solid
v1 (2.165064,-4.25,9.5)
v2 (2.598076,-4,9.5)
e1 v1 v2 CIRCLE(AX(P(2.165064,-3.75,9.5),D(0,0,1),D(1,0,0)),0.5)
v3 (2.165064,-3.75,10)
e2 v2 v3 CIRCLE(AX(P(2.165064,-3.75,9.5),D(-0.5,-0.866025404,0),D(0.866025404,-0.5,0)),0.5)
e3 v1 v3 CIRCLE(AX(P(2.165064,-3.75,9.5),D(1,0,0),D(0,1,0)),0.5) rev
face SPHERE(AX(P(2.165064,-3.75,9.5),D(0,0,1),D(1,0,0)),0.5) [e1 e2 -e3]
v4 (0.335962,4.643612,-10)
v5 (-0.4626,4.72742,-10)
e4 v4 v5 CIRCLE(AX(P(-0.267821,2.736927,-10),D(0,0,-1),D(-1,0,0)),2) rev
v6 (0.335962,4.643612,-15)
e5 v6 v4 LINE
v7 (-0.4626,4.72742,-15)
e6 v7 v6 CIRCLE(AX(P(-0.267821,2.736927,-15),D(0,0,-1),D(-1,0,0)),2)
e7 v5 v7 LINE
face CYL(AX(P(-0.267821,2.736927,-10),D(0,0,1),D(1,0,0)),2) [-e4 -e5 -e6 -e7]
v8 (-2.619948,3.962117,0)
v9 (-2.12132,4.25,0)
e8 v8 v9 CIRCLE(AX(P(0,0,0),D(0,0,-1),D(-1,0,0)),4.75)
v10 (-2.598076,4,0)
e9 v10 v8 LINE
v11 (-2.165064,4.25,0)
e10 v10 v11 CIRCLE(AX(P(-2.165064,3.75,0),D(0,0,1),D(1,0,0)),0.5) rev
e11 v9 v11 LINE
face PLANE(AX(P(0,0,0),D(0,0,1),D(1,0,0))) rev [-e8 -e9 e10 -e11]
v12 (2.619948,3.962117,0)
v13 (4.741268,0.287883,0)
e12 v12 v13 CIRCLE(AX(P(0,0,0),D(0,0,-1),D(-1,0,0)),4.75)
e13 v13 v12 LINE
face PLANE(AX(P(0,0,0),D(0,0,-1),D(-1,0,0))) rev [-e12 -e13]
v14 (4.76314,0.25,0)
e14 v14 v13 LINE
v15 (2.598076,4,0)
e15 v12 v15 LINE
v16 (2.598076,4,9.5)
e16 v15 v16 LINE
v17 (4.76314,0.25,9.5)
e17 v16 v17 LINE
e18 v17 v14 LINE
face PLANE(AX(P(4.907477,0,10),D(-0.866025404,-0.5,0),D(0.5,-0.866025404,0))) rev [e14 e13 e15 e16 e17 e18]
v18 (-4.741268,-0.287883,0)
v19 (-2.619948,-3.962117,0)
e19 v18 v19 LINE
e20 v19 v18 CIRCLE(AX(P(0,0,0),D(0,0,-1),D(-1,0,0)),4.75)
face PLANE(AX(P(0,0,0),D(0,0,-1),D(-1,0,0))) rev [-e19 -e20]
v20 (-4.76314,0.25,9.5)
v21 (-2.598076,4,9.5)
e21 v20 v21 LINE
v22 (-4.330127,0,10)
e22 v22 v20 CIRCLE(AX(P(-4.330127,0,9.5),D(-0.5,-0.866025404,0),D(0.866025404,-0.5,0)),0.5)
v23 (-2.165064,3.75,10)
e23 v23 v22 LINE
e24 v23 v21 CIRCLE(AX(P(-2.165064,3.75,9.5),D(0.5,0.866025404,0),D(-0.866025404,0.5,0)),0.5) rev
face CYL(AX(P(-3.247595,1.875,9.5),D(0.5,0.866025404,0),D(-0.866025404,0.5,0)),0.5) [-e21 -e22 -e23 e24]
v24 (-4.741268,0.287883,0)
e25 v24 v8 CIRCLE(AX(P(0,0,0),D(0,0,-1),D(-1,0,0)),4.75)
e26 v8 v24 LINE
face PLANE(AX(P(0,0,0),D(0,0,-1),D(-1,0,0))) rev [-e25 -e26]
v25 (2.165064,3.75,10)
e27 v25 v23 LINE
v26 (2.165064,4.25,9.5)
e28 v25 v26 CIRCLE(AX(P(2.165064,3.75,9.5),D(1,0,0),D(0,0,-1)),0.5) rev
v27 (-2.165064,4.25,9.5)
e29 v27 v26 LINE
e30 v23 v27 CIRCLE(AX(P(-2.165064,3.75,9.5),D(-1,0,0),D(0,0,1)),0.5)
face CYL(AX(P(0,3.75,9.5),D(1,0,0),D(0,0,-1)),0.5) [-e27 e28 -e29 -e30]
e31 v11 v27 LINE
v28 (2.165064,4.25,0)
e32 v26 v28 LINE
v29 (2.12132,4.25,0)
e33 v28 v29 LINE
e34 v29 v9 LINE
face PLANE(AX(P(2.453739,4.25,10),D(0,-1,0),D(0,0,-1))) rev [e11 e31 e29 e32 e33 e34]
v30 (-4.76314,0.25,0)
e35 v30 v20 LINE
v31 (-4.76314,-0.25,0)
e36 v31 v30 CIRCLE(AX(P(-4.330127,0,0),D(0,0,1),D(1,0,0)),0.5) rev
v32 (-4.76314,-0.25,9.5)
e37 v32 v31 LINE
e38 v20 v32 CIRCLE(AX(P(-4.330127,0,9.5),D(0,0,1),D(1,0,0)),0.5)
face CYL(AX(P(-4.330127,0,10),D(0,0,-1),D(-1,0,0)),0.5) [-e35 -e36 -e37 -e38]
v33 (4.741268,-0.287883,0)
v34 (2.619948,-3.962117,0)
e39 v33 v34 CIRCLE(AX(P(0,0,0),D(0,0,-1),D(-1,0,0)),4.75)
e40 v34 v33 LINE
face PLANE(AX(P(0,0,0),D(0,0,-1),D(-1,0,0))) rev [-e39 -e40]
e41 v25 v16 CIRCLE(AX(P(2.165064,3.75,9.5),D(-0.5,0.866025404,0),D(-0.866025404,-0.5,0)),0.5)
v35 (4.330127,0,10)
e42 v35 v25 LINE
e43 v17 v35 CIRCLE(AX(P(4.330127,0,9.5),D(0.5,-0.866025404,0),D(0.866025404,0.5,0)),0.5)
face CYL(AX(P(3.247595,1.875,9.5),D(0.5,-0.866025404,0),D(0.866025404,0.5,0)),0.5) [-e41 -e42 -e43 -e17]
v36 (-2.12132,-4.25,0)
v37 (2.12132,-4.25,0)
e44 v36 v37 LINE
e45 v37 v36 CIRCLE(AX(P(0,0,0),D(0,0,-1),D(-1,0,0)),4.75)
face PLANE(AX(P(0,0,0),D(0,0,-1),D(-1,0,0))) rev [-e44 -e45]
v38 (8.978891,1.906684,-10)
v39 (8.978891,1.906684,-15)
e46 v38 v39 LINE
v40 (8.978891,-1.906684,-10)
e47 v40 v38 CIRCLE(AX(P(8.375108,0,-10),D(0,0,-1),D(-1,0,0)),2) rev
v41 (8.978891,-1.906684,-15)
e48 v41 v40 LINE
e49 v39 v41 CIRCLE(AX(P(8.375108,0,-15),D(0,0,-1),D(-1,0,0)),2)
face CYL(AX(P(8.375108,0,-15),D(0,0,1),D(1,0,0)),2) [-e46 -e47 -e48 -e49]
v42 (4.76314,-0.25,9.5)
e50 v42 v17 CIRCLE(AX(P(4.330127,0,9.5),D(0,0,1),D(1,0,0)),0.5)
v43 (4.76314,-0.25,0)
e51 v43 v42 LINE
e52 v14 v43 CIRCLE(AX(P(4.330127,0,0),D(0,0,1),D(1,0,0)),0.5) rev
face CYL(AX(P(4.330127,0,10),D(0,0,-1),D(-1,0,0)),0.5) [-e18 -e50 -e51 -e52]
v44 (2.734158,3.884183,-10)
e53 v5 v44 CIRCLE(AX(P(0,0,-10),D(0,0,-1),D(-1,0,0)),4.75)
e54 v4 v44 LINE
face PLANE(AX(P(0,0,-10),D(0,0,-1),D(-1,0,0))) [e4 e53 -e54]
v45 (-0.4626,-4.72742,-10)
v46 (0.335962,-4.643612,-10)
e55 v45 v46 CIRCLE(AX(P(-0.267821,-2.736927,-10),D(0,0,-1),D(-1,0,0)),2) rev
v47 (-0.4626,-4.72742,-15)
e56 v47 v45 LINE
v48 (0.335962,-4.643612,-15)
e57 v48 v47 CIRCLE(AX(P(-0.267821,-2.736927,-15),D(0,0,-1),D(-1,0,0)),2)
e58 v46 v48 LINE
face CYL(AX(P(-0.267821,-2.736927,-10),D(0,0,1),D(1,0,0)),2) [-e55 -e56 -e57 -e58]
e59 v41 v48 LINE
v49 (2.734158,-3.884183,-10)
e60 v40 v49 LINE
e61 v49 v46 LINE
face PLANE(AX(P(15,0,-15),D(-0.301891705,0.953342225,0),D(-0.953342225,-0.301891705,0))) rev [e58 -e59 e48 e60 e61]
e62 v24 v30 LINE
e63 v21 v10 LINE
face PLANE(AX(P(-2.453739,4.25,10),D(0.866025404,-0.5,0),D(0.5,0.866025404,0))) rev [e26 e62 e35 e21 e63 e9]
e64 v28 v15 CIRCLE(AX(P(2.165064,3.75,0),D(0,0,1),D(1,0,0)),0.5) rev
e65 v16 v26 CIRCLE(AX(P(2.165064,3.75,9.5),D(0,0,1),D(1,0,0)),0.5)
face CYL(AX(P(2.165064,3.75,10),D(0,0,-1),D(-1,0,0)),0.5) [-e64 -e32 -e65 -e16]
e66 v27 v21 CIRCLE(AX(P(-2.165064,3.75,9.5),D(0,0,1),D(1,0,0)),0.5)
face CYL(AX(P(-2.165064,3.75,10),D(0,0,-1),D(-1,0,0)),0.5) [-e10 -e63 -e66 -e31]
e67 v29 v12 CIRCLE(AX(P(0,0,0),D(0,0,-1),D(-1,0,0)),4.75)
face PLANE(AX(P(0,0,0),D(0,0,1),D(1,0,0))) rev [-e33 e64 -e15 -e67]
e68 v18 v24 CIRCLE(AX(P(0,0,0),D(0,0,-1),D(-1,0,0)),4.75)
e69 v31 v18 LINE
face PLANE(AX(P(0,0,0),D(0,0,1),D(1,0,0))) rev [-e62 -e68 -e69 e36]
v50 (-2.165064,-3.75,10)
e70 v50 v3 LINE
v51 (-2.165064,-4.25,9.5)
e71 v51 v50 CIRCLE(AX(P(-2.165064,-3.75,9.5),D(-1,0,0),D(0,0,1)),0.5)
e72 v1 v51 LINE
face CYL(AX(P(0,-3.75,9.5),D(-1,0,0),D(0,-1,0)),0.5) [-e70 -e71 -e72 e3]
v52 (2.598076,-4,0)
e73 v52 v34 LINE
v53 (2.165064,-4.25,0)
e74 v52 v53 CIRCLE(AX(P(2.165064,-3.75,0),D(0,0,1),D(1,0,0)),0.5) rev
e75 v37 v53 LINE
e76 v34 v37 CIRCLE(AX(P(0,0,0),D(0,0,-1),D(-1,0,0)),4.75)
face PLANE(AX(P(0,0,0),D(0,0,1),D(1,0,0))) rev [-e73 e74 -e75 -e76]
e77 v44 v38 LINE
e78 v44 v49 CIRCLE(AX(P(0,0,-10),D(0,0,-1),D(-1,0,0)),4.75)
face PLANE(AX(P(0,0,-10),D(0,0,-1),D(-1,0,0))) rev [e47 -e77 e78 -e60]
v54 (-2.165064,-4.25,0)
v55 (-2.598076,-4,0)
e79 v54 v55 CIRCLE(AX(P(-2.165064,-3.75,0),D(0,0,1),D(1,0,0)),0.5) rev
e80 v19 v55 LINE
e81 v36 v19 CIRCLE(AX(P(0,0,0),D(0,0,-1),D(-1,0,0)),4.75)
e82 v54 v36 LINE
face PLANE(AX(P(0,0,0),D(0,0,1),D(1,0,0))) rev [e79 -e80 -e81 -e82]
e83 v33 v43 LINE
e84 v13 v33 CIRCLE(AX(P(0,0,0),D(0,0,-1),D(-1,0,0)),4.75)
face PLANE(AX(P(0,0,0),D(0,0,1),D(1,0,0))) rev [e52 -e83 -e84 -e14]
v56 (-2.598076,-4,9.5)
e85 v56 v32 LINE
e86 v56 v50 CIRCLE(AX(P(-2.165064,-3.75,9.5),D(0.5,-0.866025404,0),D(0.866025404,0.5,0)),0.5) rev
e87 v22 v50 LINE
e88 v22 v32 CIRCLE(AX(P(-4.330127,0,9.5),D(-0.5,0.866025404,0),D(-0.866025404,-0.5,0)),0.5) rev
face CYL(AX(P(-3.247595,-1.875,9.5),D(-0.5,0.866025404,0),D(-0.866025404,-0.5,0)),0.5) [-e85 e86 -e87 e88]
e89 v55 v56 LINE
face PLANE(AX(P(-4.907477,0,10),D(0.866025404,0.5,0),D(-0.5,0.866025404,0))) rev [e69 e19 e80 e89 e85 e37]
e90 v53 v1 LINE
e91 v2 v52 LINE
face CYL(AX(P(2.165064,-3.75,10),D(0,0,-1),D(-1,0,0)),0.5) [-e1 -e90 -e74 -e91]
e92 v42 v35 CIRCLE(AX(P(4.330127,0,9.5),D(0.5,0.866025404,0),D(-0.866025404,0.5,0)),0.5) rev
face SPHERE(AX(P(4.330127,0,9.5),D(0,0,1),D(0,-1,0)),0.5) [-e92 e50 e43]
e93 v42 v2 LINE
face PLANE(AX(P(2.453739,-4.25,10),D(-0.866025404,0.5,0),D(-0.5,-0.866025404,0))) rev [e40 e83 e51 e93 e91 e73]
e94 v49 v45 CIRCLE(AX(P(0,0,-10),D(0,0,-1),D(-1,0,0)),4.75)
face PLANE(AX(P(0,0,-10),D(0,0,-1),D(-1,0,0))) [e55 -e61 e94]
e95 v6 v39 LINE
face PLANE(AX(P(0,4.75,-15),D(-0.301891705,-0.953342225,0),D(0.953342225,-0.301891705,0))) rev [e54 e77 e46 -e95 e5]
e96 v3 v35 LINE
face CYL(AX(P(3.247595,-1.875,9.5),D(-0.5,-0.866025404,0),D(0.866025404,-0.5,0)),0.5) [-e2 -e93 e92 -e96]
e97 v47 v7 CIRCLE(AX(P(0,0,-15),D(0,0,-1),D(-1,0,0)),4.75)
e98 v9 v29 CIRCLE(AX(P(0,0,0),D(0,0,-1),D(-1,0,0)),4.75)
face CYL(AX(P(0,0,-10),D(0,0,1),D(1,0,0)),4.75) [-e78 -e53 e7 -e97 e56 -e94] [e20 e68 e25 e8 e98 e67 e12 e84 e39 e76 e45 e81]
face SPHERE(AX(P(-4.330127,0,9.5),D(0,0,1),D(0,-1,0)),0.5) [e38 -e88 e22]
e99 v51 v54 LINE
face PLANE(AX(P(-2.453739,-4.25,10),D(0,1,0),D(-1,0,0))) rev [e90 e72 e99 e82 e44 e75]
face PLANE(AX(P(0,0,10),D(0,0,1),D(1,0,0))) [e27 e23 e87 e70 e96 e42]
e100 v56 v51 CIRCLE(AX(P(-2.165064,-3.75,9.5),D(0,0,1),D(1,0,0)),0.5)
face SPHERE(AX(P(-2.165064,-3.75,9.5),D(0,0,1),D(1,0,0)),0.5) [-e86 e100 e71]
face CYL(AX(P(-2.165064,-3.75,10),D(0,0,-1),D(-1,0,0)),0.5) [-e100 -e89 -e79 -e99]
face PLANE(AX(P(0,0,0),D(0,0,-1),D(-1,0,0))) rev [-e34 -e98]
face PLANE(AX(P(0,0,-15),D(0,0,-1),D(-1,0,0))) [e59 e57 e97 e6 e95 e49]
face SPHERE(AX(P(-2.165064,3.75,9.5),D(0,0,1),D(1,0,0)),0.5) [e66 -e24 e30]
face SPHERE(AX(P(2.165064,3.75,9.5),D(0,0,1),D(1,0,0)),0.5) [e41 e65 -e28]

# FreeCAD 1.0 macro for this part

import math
import FreeCAD as App
import Part
import Sketcher
from FreeCAD import Vector
Q = App.Units.Quantity


def edges_at(feature, points):
    """Names of the edges that pass closest to the given points."""
    edges = feature.Shape.Edges
    near = lambda p: min(range(len(edges)), key=lambda i: edges[i].distToShape(Part.Vertex(*p))[0])
    return sorted({f"Edge{near(p) + 1}" for p in points})


def add_polygon(sketch, points):
    """Adds a closed chain of lines whose ends are joined by coincident constraints."""
    first, n = sketch.GeometryCount, len(points)
    for a, b in zip(points, points[1:] + points[:1]):
        sketch.addGeometry(Part.LineSegment(App.Vector(*a, 0), App.Vector(*b, 0)), False)
    for i in range(n):
        sketch.addConstraint(Sketcher.Constraint("Coincident", first + i, 2, first + (i + 1) % n, 1))

doc = App.newDocument("Part")
params = doc.addObject("Spreadsheet::Sheet", "Params")
for row, (alias, value) in enumerate([
    ("pad1_length", "10 mm"),
    ("fillet_radius", "0.5 mm"),
    ("sketch2_diameter", "9.5 mm"),
    ("pad2_length", "10 mm"),
    ("sketch3_radius", "4.75 mm"),
    ("pad3_length", "5 mm"),
    ("fillet2_radius", "2 mm"),
], start=1):
    params.set(f"A{row}", alias)
    params.set(f"B{row}", "=" + value)
    params.setAlias(f"B{row}", alias)

body = doc.addObject("PartDesign::Body", "Body")

# Sketch on XY plane
sketch1 = doc.addObject("Sketcher::SketchObject", "Sketch")
body.addObject(sketch1)
sketch1.AttachmentSupport = (doc.XY_Plane, [""])
sketch1.MapMode = "FlatFace"
add_polygon(sketch1, [(2.5, -4.2), (4.9, 0), (2.5, 4.2), (-2.5, 4.2), (-4.9, 0), (-2.5, -4.2)])  # lines 0-5
sketch1.addConstraint([
    Sketcher.Constraint("Horizontal", 2),
    Sketcher.Constraint("Horizontal", 5),
    Sketcher.Constraint("Symmetric", 0, 2, 3, 2, -1, 1),
    Sketcher.Constraint("Symmetric", 1, 2, 4, 2, -1, 1),
    Sketcher.Constraint("PointOnObject", 0, 2, -1),
    Sketcher.Constraint("Parallel", 0, 3),
    Sketcher.Constraint("Vertical", 2, 2, 4, 2),
    Sketcher.Constraint("Angle", 0, Q("60 deg")),
    Sketcher.Constraint("DistanceY", 4, 2, 2, 2, Q("8.5 mm")),
    Sketcher.Constraint("DistanceX", 2, 2, 2, 1, Q("4.907477 mm")),
])
pad1 = doc.addObject("PartDesign::Pad", "Pad")
body.addObject(pad1)
pad1.Profile = sketch1
pad1.setExpression("Length", "Params.pad1_length")
doc.recompute()

fillet = doc.addObject("PartDesign::Fillet", "Fillet")
body.addObject(fillet)
fillet.Base = (pad1, edges_at(pad1, [
    (-2.454, -4.25, 5),
    (-4.907, 0, 5),
    (-2.454, 4.25, 5),
    (2.454, 4.25, 5),
    (4.907, 0, 5),
    (2.454, -4.25, 5),
    (3.681, 2.125, 10),
    (0, 4.25, 10),
    (-3.681, 2.125, 10),
    (-3.681, -2.125, 10),
    (0, -4.25, 10),
    (3.681, -2.125, 10),
]))
fillet.setExpression("Radius", "Params.fillet_radius")

# Sketch on XY plane
sketch2 = doc.addObject("Sketcher::SketchObject", "Sketch001")
body.addObject(sketch2)
sketch2.AttachmentSupport = (doc.XY_Plane, [""])
sketch2.MapMode = "FlatFace"
sketch2.addGeometry(Part.Circle(Vector(0, 0, 0), Vector(0, 0, 1), 4.8), False)
sketch2.addConstraint([
    Sketcher.Constraint("Coincident", 0, 3, -1, 1),
    Sketcher.Constraint("Diameter", 0, Q("9.5 mm")),
])
sketch2.setExpression("Constraints[1]", "Params.sketch2_diameter")
pad2 = doc.addObject("PartDesign::Pad", "Pad001")
body.addObject(pad2)
pad2.Profile = sketch2
pad2.setExpression("Length", "Params.pad2_length")
pad2.Reversed = True

# Sketch on XY plane
sketch3 = doc.addObject("Sketcher::SketchObject", "Sketch002")
body.addObject(sketch3)
sketch3.AttachmentSupport = (doc.XY_Plane, [""])
sketch3.MapMode = "FlatFace"
sketch3.AttachmentOffset = App.Placement(Vector(0, 0, -10), App.Rotation())
sketch3.addGeometry([
    Part.LineSegment(Vector(0, 4.8, 0), Vector(15, 0, 0)),
    Part.LineSegment(Vector(15, 0, 0), Vector(0, -4.8, 0)),
    Part.ArcOfCircle(Part.Circle(Vector(0, 0, 0), Vector(0, 0, 1), 4.8), math.radians(90), math.radians(270)),
], False)
sketch3.addConstraint([
    Sketcher.Constraint("Coincident", 0, 2, 1, 1),
    Sketcher.Constraint("Coincident", 1, 2, 2, 2),
    Sketcher.Constraint("Coincident", 2, 1, 0, 1),
    Sketcher.Constraint("Coincident", 2, 3, -1, 1),
    Sketcher.Constraint("PointOnObject", 0, 2, -1),
    Sketcher.Constraint("PointOnObject", 1, 2, -2),
    Sketcher.Constraint("PointOnObject", 2, 1, -2),
    Sketcher.Constraint("Radius", 2, Q("4.75 mm")),
    Sketcher.Constraint("DistanceX", -1, 1, 0, 2, Q("15 mm")),
])
sketch3.setExpression("Constraints[7]", "Params.sketch3_radius")
pad3 = doc.addObject("PartDesign::Pad", "Pad002")
body.addObject(pad3)
pad3.Profile = sketch3
pad3.setExpression("Length", "Params.pad3_length")
pad3.Reversed = True
doc.recompute()

fillet2 = doc.addObject("PartDesign::Fillet", "Fillet001")
body.addObject(fillet2)
fillet2.Base = (pad3, edges_at(pad3, [(0, -4.75, -12.5), (0, 4.75, -12.5), (15, 0, -12.5)]))
fillet2.setExpression("Radius", "Params.fillet2_radius")

doc.recompute()
